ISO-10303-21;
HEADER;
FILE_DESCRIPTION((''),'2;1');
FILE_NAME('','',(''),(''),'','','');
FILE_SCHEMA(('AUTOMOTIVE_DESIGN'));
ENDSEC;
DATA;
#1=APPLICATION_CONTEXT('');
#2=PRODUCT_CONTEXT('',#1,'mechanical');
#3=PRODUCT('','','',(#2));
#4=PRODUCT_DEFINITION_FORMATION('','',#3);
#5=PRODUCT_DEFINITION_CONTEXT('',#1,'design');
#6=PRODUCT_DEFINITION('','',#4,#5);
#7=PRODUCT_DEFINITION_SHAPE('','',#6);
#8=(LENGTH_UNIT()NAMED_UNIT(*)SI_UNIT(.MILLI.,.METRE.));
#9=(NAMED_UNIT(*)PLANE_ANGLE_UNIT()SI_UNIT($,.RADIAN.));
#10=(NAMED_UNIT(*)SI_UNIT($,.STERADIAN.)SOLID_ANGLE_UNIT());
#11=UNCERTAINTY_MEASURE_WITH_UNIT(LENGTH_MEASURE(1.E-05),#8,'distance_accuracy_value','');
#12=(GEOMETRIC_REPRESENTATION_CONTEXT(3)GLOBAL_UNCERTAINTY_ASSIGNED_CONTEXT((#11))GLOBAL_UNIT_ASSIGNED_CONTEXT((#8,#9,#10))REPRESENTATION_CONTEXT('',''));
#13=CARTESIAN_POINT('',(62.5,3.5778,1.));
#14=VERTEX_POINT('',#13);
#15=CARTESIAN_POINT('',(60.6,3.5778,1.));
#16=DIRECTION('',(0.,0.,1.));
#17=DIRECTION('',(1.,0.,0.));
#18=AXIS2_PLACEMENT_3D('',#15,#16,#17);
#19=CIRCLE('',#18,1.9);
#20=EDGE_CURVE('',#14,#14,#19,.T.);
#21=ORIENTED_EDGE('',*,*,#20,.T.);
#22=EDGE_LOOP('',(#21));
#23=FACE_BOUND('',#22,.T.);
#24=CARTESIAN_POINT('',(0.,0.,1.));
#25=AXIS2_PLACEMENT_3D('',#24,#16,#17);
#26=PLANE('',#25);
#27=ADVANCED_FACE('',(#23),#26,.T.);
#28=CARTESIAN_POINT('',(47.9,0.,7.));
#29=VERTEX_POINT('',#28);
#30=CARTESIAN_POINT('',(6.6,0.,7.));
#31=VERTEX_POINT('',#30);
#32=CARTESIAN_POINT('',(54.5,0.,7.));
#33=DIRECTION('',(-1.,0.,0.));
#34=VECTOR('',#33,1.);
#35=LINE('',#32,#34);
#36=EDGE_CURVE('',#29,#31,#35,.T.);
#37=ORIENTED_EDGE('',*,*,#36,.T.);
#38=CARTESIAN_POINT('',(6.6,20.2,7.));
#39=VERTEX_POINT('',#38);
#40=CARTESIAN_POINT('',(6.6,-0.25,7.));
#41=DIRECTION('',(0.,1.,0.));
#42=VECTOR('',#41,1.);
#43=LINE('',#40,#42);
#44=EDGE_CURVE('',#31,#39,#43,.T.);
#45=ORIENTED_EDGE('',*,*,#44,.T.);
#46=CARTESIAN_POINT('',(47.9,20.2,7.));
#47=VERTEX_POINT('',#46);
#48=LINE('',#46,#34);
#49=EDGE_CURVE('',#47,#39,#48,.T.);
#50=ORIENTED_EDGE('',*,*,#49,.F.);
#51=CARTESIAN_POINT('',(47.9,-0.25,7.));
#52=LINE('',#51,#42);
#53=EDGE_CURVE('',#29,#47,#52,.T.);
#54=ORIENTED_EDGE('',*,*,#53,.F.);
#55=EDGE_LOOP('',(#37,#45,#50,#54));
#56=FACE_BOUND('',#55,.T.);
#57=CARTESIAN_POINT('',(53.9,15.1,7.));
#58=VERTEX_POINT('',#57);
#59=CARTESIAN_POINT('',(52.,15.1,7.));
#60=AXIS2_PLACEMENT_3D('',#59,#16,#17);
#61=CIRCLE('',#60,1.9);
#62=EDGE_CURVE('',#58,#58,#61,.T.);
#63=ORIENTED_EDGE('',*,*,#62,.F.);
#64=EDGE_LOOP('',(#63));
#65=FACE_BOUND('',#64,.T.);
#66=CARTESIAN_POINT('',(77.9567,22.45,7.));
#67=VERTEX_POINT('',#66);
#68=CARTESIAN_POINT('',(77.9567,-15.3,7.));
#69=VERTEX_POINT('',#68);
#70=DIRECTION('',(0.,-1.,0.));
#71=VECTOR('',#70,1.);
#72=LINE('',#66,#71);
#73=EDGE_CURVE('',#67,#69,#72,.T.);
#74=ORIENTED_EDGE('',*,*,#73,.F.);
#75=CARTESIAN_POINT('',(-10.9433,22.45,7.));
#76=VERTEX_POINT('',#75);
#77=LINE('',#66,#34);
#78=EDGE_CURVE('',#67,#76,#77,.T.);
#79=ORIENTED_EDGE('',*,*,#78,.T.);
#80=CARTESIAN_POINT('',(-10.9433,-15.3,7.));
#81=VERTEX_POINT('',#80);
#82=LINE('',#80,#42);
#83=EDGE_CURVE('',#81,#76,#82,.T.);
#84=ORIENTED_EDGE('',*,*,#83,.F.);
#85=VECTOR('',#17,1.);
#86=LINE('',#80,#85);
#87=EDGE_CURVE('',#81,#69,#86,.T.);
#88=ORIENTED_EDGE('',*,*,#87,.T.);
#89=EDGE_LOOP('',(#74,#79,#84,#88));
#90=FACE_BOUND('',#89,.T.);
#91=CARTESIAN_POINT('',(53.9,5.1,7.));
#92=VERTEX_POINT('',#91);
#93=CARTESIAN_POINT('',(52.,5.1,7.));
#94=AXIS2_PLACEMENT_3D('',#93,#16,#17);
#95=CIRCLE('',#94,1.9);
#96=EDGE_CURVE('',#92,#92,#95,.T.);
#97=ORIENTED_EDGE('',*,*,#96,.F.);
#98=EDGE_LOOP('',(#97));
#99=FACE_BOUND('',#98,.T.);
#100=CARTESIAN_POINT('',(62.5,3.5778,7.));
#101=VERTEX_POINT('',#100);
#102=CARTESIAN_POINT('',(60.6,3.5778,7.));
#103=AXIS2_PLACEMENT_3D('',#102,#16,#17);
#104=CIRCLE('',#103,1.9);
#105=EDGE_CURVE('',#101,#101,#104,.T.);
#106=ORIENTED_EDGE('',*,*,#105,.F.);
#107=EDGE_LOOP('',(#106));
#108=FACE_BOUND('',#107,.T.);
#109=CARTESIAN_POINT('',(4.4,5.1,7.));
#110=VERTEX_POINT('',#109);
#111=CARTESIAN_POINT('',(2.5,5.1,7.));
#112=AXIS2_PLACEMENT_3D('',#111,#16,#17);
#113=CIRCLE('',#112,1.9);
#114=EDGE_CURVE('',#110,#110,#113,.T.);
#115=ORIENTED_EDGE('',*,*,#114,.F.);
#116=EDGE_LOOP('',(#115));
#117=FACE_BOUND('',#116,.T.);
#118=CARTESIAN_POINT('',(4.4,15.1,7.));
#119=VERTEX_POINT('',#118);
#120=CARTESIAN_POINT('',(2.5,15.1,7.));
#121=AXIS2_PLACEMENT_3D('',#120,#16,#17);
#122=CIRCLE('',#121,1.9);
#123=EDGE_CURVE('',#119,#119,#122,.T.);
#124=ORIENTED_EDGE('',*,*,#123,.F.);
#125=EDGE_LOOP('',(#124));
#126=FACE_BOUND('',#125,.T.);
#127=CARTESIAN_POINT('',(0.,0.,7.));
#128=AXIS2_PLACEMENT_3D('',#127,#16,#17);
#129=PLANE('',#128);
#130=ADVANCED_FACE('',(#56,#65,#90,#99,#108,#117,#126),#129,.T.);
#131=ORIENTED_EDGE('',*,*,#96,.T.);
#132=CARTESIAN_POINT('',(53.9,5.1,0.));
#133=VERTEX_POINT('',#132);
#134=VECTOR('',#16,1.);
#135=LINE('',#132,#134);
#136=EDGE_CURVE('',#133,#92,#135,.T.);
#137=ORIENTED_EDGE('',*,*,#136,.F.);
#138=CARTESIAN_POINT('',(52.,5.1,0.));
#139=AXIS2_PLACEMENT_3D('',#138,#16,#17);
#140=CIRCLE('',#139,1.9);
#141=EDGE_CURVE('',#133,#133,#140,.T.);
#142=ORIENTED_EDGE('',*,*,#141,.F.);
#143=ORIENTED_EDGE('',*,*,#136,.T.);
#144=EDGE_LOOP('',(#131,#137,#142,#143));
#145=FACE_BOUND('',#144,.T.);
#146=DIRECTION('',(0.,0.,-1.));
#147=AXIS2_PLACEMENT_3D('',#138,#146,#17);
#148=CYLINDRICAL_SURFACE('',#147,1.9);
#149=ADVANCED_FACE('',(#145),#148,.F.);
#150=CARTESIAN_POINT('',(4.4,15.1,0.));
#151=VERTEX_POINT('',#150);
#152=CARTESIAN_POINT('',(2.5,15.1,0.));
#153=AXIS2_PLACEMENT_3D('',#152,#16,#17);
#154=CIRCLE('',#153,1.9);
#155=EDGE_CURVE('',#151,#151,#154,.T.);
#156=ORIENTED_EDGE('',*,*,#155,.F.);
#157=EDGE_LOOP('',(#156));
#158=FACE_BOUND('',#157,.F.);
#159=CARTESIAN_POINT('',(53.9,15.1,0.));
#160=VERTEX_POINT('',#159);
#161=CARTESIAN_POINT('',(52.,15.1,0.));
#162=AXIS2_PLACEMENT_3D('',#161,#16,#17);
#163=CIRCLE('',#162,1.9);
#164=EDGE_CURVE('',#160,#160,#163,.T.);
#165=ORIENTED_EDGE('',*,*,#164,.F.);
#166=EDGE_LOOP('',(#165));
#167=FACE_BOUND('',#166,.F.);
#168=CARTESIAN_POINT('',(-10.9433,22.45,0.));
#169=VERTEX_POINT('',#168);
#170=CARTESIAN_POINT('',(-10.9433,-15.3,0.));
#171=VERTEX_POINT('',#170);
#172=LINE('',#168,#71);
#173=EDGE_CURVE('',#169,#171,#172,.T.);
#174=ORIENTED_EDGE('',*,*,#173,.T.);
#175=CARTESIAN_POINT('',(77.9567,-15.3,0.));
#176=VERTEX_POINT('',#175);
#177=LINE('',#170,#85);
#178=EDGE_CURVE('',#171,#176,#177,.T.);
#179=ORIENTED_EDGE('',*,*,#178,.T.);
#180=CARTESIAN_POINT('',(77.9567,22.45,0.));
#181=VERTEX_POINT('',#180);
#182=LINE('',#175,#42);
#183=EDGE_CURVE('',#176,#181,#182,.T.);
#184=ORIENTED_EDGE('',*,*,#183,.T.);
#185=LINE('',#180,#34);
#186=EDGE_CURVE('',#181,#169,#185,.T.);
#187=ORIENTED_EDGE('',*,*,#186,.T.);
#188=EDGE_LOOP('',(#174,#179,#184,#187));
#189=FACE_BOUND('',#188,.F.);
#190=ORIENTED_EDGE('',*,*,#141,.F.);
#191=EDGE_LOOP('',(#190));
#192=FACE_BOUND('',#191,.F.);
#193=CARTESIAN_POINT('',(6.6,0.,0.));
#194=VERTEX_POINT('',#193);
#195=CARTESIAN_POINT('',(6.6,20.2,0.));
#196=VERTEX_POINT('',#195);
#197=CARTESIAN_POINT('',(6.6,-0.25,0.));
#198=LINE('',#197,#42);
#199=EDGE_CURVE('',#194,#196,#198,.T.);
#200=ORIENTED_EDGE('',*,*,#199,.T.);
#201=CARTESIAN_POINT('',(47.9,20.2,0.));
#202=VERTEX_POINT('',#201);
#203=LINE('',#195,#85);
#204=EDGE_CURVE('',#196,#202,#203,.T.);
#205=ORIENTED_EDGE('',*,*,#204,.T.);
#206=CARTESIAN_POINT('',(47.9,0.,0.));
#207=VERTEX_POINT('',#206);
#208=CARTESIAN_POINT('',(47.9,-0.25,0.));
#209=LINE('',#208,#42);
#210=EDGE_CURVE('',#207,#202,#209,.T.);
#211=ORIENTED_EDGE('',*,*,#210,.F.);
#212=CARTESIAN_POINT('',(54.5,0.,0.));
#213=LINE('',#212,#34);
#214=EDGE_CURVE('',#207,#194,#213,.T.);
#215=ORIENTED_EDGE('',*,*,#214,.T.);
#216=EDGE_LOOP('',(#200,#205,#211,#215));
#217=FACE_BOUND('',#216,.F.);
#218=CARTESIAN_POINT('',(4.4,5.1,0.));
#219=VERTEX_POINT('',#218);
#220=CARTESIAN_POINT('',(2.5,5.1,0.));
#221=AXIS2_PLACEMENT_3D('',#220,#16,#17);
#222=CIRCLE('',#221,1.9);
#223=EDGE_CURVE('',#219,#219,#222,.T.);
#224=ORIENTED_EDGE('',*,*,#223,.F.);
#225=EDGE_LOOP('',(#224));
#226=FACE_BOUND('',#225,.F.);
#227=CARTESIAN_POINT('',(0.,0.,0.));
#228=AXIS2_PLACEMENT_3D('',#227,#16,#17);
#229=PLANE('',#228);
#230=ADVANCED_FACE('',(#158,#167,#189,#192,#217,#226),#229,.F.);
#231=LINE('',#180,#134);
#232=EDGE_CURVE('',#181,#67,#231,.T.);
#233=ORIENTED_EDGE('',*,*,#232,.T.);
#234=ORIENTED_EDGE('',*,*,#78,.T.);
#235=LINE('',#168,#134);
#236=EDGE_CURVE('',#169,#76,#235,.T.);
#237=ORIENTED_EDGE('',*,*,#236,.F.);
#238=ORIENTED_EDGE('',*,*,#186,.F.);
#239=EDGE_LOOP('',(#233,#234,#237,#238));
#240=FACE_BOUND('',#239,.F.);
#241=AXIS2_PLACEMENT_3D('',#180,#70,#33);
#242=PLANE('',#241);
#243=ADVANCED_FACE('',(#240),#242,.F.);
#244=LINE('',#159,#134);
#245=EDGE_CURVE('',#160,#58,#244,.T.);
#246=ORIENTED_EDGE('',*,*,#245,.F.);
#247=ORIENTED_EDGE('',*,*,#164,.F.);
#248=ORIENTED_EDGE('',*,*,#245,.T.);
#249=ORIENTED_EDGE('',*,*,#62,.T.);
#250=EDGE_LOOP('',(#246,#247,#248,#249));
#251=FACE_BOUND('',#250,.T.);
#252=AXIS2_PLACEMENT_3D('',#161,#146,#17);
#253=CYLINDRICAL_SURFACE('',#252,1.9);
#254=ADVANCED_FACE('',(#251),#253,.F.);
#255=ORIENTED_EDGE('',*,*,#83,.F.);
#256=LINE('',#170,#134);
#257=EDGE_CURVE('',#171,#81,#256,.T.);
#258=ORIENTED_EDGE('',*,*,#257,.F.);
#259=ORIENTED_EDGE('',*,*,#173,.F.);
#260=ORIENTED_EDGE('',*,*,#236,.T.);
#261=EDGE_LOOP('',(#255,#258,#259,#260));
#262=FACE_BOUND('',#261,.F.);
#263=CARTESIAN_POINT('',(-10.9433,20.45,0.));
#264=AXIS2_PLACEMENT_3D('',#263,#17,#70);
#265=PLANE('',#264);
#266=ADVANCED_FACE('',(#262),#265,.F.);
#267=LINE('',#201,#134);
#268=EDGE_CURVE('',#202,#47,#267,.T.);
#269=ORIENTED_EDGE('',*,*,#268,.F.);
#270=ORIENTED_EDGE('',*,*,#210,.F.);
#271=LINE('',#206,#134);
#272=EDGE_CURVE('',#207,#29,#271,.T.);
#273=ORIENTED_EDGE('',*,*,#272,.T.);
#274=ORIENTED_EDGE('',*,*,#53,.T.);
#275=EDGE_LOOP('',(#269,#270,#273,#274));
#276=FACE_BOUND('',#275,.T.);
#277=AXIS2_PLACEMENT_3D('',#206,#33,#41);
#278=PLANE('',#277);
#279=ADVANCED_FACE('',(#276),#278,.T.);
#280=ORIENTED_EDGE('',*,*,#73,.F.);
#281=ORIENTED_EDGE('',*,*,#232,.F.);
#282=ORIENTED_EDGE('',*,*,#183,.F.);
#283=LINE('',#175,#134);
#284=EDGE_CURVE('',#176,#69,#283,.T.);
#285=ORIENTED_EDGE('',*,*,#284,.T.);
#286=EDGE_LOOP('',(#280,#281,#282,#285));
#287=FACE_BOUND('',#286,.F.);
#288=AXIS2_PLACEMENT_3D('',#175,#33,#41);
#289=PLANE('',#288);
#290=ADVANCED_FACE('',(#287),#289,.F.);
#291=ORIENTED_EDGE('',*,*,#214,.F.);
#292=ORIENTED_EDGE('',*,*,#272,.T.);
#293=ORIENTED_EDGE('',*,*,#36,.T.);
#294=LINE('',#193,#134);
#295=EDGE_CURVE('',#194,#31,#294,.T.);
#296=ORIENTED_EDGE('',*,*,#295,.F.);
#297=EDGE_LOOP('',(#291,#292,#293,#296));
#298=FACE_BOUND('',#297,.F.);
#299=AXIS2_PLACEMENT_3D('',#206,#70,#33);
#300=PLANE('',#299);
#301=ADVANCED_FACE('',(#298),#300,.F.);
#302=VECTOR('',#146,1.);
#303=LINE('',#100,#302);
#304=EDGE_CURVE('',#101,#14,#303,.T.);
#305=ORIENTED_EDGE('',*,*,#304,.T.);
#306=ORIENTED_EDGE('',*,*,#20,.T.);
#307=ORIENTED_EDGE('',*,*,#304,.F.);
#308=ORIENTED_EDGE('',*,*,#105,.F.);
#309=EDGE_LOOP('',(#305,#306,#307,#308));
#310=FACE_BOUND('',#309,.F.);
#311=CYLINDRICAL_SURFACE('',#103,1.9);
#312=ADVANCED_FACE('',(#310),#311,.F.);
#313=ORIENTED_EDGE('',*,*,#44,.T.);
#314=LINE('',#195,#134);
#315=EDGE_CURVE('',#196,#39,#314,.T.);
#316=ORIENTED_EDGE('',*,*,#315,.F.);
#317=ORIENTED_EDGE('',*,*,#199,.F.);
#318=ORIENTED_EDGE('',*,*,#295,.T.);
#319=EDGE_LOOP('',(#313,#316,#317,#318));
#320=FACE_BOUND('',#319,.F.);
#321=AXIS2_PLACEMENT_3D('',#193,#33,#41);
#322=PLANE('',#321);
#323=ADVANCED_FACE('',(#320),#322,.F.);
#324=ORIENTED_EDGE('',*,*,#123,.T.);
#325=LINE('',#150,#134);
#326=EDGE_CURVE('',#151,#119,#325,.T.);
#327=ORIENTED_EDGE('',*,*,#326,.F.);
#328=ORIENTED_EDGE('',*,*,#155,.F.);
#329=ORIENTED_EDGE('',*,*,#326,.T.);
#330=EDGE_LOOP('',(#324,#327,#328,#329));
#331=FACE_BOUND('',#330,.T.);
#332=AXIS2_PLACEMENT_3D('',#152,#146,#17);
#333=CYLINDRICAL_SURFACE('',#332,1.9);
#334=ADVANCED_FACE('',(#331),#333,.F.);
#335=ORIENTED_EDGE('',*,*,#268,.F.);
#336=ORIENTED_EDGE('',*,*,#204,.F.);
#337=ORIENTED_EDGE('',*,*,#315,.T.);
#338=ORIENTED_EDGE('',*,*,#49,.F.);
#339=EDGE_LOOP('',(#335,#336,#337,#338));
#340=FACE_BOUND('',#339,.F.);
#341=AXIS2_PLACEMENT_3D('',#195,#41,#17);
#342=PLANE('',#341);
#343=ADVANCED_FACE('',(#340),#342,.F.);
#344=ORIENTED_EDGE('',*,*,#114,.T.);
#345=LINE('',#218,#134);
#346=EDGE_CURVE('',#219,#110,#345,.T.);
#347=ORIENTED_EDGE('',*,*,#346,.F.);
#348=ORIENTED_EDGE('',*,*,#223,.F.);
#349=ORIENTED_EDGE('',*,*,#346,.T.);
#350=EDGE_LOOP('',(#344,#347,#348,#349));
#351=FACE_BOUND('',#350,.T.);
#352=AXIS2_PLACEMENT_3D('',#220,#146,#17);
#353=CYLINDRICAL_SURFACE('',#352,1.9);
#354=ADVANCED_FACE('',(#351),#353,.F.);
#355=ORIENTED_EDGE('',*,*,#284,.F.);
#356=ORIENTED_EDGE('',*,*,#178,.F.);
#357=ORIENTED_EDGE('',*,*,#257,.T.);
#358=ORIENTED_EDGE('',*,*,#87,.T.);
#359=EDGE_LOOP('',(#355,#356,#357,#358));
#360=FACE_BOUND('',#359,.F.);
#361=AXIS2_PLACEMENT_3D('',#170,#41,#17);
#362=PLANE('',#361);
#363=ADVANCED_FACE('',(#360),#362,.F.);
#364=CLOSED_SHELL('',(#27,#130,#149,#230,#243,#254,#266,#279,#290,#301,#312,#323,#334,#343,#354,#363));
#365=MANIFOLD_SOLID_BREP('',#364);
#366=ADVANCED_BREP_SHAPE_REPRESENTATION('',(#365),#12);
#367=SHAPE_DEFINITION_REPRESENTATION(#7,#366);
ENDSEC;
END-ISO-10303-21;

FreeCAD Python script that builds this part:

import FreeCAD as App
import Part
import Sketcher
Q = App.Units.Quantity

doc = App.newDocument("Part")
body = doc.addObject("PartDesign::Body", "Body")

# Sketch on XY plane
sketch1 = body.newObject("Sketcher::SketchObject", "Sketch")
sketch1.AttachmentSupport = (doc.getObject("XY_Plane"), [""])
sketch1.MapMode = "FlatFace"
sketch1.addGeometry([
    Part.LineSegment(App.Vector(-0.2, 20.4, 0), App.Vector(-0.2, -0.2, 0)),  # 0
    Part.LineSegment(App.Vector(-0.2, -0.2, 0), App.Vector(54.8, -0.2, 0)),  # 1
    Part.LineSegment(App.Vector(54.8, -0.2, 0), App.Vector(54.8, 20.4, 0)),  # 2
    Part.LineSegment(App.Vector(54.8, 20.4, 0), App.Vector(-0.2, 20.4, 0)),  # 3
    Part.LineSegment(App.Vector(6.6, 20.2, 0), App.Vector(47.9, 20.2, 0)),  # 4
    Part.LineSegment(App.Vector(47.9, 20.2, 0), App.Vector(47.9, 0, 0)),  # 5
    Part.LineSegment(App.Vector(47.9, 0, 0), App.Vector(6.6, 0, 0)),  # 6
    Part.LineSegment(App.Vector(6.6, 0, 0), App.Vector(6.6, 20.2, 0)),  # 7
    Part.Circle(App.Vector(2.5, 15.1, 0), App.Vector(0, 0, 1), 1.9),  # 8
    Part.Circle(App.Vector(2.5, 5.1, 0), App.Vector(0, 0, 1), 1.9),  # 9
    Part.Circle(App.Vector(52, 15.1, 0), App.Vector(0, 0, 1), 1.9),  # 10
    Part.Circle(App.Vector(52, 5.1, 0), App.Vector(0, 0, 1), 1.9),  # 11
], False)
sketch1.addConstraint([
    Sketcher.Constraint("Coincident", 0, 2, 1, 1),
    Sketcher.Constraint("Coincident", 1, 2, 2, 1),
    Sketcher.Constraint("Coincident", 2, 2, 3, 1),
    Sketcher.Constraint("Coincident", 3, 2, 0, 1),
    Sketcher.Constraint("Coincident", 4, 2, 5, 1),
    Sketcher.Constraint("Coincident", 5, 2, 6, 1),
    Sketcher.Constraint("Coincident", 6, 2, 7, 1),
    Sketcher.Constraint("Coincident", 7, 2, 4, 1),
    Sketcher.Constraint("Vertical", 0),
    Sketcher.Constraint("Horizontal", 1),
    Sketcher.Constraint("Vertical", 2),
    Sketcher.Constraint("Horizontal", 3),
    Sketcher.Constraint("Horizontal", 4),
    Sketcher.Constraint("Vertical", 5),
    Sketcher.Constraint("Horizontal", 6),
    Sketcher.Constraint("Vertical", 7),
    Sketcher.Constraint("Equal", 8, 9),
    Sketcher.Constraint("Equal", 9, 10),
    Sketcher.Constraint("Equal", 10, 11),
    Sketcher.Constraint("PointOnObject", 5, 2, -1),
    Sketcher.Constraint("Horizontal", 8, 3, 10, 3),
    Sketcher.Constraint("Horizontal", 9, 3, 11, 3),
    Sketcher.Constraint("Vertical", 8, 3, 9, 3),
    Sketcher.Constraint("Vertical", 10, 3, 11, 3),
    Sketcher.Constraint("Diameter", 8, Q("3.8 mm")),
    Sketcher.Constraint("DistanceX", 1, 1, 1, 2, Q("55 mm")),
    Sketcher.Constraint("DistanceX", 0, 2, -1, 1, Q("0.25 mm")),
    Sketcher.Constraint("DistanceY", 0, 2, -1, 1, Q("0.25 mm")),
    Sketcher.Constraint("DistanceY", 4, 2, 2, 2, Q("0.25 mm")),
    Sketcher.Constraint("DistanceX", 4, 1, 4, 2, Q("41.3 mm")),
    Sketcher.Constraint("DistanceY", 0, 2, 0, 1, Q("20.7 mm")),
    Sketcher.Constraint("DistanceX", -1, 1, 10, 3, Q("52 mm")),
    Sketcher.Constraint("DistanceY", 9, 3, 8, 3, Q("10 mm")),
    Sketcher.Constraint("DistanceX", -1, 1, 8, 3, Q("2.5 mm")),
    Sketcher.Constraint("DistanceY", -1, 1, 8, 3, Q("15.1 mm")),
    Sketcher.Constraint("DistanceX", -1, 1, 4, 2, Q("47.9 mm")),
])
pad1 = body.newObject("PartDesign::Pad", "Pad")
pad1.Profile = sketch1
pad1.Length = 7

# Sketch on XY plane
sketch2 = body.newObject("Sketcher::SketchObject", "Sketch001")
sketch2.AttachmentSupport = (doc.getObject("XY_Plane"), [""])
sketch2.MapMode = "FlatFace"
sketch2.addGeometry([
    Part.LineSegment(App.Vector(78, -15, 0), App.Vector(-11, -15, 0)),  # 0
    Part.LineSegment(App.Vector(-11, -15, 0), App.Vector(-11, 22, 0)),  # 1
    Part.LineSegment(App.Vector(-11, 22, 0), App.Vector(78, 22, 0)),  # 2
    Part.LineSegment(App.Vector(78, 22, 0), App.Vector(78, -15, 0)),  # 3
    Part.LineSegment(App.Vector(55, 0, 0), App.Vector(55, 20, 0)),  # 4
    Part.LineSegment(App.Vector(55, 20, 0), App.Vector(0, 20, 0)),  # 5
    Part.LineSegment(App.Vector(0, 20, 0), App.Vector(0, 0, 0)),  # 6
    Part.LineSegment(App.Vector(0, 0, 0), App.Vector(55, 0, 0)),  # 7
], False)
sketch2.addConstraint([
    Sketcher.Constraint("Coincident", 0, 2, 1, 1),
    Sketcher.Constraint("Coincident", 1, 2, 2, 1),
    Sketcher.Constraint("Coincident", 2, 2, 3, 1),
    Sketcher.Constraint("Coincident", 3, 2, 0, 1),
    Sketcher.Constraint("Coincident", 4, 2, 5, 1),
    Sketcher.Constraint("Coincident", 5, 2, 6, 1),
    Sketcher.Constraint("Coincident", 6, 2, 7, 1),
    Sketcher.Constraint("Coincident", 7, 2, 4, 1),
    Sketcher.Constraint("Horizontal", 0),
    Sketcher.Constraint("Vertical", 1),
    Sketcher.Constraint("Horizontal", 2),
    Sketcher.Constraint("Vertical", 3),
    Sketcher.Constraint("Vertical", 4),
    Sketcher.Constraint("Horizontal", 5),
    Sketcher.Constraint("Vertical", 6),
    Sketcher.Constraint("Horizontal", 7),
    Sketcher.Constraint("DistanceY", 4, 2, 2, 2, Q("2 mm")),
    Sketcher.Constraint("DistanceX", 5, 2, 5, 1, Q("55 mm")),
    Sketcher.Constraint("DistanceX", 0, 2, 0, 1, Q("88.9 mm")),
    Sketcher.Constraint("DistanceY", 4, 1, 4, 2, Q("20.7 mm")),
    Sketcher.Constraint("DistanceY", 1, 1, 1, 2, Q("37.75 mm")),
    Sketcher.Constraint("DistanceY", 0, 2, -1, 1, Q("15.3 mm")),
    Sketcher.Constraint("DistanceX", -1, 1, 4, 2, Q("54.75 mm")),
    Sketcher.Constraint("DistanceX", 0, 2, -1, 1, Q("10.9433 mm")),
])
pad2 = body.newObject("PartDesign::Pad", "Pad001")
pad2.Profile = sketch2
pad2.Length = 7

# Sketch on XY plane
sketch3 = body.newObject("Sketcher::SketchObject", "Sketch002")
sketch3.AttachmentSupport = (doc.getObject("XY_Plane"), [""])
sketch3.MapMode = "FlatFace"
sketch3.AttachmentOffset = App.Placement(App.Vector(0, 0, 7), App.Rotation())
sketch3.addGeometry(Part.Circle(App.Vector(60.6, 3.6, 0), App.Vector(0, 0, 1), 1.9), False)
sketch3.addConstraint([
    Sketcher.Constraint("Diameter", 0, Q("3.8 mm")),
    Sketcher.Constraint("DistanceX", -1, 1, 0, 3, Q("60.6 mm")),
    Sketcher.Constraint("DistanceY", -1, 1, 0, 3, Q("3.5778 mm")),
])
pocket1 = body.newObject("PartDesign::Pocket", "Pocket")
pocket1.Profile = sketch3
pocket1.Length = 6

doc.recompute()
